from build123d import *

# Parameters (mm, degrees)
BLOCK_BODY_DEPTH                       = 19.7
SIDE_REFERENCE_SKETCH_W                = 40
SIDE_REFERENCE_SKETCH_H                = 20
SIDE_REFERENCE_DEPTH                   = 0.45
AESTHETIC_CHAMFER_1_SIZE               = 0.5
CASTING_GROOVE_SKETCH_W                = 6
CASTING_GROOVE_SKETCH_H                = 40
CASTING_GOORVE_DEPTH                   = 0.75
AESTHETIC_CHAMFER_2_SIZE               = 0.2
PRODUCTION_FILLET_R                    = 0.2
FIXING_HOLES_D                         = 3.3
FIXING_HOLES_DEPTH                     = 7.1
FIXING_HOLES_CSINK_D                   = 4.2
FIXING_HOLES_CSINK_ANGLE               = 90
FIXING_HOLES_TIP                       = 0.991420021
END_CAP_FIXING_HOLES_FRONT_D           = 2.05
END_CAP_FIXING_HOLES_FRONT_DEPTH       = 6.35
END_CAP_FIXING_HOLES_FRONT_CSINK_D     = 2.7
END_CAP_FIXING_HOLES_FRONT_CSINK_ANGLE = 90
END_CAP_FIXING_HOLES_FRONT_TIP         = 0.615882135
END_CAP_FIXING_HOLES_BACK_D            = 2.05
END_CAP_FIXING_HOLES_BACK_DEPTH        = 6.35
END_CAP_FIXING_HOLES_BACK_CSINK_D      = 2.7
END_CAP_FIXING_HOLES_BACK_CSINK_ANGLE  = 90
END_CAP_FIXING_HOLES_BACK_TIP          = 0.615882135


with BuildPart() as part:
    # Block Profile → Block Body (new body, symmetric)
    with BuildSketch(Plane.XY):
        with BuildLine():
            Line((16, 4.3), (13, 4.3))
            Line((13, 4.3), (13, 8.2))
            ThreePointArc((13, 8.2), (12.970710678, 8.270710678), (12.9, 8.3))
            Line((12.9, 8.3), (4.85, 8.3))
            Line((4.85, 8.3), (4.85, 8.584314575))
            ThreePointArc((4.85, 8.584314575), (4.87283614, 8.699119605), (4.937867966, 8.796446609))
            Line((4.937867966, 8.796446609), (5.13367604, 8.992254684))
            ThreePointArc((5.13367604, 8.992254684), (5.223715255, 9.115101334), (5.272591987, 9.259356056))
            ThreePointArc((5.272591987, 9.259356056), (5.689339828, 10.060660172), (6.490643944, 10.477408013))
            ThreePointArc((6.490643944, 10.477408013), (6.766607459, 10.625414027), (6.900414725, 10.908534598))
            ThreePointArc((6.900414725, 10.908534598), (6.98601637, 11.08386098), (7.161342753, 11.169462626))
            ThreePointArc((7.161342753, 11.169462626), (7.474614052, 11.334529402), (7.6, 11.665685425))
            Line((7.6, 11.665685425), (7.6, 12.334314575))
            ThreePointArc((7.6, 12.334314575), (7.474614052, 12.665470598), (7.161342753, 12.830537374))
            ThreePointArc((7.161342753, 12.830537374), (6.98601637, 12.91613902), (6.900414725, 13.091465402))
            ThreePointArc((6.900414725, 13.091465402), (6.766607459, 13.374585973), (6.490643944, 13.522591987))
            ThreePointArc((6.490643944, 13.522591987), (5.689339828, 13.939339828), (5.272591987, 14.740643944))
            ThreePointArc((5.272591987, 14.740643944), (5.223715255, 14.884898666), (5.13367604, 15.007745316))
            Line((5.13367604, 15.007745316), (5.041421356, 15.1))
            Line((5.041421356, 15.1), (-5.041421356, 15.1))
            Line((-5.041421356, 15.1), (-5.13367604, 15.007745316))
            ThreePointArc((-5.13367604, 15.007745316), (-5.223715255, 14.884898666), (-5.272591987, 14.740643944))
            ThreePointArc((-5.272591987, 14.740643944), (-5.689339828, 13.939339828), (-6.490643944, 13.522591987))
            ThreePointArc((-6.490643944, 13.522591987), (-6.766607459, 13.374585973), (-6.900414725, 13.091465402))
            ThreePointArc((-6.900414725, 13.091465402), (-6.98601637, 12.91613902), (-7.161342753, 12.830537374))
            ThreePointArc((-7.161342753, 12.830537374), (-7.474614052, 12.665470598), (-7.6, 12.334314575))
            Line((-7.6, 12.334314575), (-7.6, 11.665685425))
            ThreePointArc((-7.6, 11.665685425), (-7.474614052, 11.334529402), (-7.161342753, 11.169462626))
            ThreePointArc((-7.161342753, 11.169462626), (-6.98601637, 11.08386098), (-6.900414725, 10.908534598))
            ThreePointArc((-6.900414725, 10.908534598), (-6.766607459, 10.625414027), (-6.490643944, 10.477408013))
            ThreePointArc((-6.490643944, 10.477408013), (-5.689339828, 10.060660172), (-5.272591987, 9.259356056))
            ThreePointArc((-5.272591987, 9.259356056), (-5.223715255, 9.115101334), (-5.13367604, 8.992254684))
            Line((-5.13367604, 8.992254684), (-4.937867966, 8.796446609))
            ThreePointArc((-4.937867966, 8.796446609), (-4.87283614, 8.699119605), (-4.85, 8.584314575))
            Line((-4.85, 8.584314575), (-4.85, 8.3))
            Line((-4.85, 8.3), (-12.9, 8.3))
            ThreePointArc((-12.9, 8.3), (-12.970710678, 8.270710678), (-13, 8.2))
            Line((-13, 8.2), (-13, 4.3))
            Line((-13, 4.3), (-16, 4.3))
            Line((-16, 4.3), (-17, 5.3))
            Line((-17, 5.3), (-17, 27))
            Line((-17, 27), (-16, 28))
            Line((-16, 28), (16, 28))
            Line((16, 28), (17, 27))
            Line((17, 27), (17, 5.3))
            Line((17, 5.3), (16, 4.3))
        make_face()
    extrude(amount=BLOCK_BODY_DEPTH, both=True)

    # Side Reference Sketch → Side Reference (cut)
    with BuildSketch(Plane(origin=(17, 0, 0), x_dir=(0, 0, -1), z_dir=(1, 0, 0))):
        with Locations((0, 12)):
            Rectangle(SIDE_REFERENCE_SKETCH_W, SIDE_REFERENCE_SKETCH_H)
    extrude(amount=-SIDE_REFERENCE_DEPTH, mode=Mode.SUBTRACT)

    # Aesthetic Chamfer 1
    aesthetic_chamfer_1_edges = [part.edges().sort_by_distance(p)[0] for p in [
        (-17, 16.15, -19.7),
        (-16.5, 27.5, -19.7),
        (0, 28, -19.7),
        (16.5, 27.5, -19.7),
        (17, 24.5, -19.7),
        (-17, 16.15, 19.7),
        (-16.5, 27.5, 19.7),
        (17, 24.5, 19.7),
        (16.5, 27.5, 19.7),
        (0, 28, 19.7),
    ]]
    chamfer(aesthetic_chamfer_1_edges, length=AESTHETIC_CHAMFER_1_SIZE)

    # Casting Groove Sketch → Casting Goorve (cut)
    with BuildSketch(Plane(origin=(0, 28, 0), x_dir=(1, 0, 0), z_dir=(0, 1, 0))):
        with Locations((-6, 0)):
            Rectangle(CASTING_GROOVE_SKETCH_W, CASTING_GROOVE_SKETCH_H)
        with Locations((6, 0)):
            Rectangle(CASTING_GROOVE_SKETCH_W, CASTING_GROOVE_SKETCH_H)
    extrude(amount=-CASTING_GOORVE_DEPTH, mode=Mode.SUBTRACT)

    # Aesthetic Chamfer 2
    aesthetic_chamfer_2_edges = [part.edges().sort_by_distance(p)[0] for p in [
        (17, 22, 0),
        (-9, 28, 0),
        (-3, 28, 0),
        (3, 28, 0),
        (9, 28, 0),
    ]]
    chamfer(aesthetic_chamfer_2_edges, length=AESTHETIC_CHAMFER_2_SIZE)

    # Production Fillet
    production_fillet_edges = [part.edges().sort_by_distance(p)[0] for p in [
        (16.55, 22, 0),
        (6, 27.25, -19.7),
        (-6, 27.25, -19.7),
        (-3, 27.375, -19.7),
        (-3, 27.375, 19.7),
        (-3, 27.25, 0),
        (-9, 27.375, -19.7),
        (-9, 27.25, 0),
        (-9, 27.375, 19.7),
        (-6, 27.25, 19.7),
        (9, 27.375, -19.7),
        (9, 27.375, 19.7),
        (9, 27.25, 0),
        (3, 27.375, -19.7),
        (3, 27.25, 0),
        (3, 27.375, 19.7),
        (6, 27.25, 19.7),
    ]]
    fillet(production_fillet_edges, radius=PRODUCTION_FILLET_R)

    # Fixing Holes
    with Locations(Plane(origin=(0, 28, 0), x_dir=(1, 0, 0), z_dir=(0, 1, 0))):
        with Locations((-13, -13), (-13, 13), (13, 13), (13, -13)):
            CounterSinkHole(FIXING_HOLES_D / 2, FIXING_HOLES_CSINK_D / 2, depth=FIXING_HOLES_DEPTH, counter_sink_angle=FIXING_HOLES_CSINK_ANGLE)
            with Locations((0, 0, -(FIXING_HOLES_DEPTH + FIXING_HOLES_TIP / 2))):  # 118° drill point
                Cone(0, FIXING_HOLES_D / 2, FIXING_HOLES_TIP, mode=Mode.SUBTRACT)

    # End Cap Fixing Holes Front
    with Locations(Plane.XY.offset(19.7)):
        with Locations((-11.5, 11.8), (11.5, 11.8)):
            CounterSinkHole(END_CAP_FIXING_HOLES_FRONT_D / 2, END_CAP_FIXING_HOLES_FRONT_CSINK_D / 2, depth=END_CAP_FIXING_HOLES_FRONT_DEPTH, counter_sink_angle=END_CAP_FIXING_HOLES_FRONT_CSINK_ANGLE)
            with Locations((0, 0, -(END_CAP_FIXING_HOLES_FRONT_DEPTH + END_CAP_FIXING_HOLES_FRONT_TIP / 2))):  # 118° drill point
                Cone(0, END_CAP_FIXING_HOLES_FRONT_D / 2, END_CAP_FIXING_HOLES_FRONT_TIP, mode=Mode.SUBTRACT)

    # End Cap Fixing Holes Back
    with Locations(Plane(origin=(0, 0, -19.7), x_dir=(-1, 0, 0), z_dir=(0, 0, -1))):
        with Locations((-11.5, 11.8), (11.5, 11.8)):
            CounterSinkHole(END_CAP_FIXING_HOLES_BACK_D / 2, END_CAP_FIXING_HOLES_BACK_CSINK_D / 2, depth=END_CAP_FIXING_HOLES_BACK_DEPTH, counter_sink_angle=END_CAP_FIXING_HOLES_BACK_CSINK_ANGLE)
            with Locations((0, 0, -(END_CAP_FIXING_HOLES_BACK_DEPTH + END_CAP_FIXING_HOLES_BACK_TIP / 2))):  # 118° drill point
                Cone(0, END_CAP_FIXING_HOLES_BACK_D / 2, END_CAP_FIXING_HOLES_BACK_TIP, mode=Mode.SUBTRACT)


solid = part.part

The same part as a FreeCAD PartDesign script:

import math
import FreeCAD as App
import Part
import Sketcher
from FreeCAD import Vector
Q = App.Units.Quantity


def edges_at(feature, points):
    """Names of the edges that pass closest to the given points."""
    edges = feature.Shape.Edges
    near = lambda p: min(range(len(edges)), key=lambda i: edges[i].distToShape(Part.Vertex(*p))[0])
    return sorted({f"Edge{near(p) + 1}" for p in points})


def add_polygon(sketch, points):
    """Adds a closed chain of lines whose ends are joined by coincident constraints."""
    first, n = sketch.GeometryCount, len(points)
    for a, b in zip(points, points[1:] + points[:1]):
        sketch.addGeometry(Part.LineSegment(App.Vector(*a, 0), App.Vector(*b, 0)), False)
    for i in range(n):
        sketch.addConstraint(Sketcher.Constraint("Coincident", first + i, 2, first + (i + 1) % n, 1))

doc = App.newDocument("Part")
body = doc.addObject("PartDesign::Body", "Body")

sketch1 = body.newObject("Sketcher::SketchObject", "Sketch")
sketch1.AttachmentSupport = (doc.getObject("XY_Plane"), [""])
sketch1.MapMode = "FlatFace"
sketch1.addGeometry([
    Part.LineSegment(Vector(13, 4.3, 0), Vector(16, 4.3, 0)),
    Part.LineSegment(Vector(16, 4.3, 0), Vector(17, 5.3, 0)),
    Part.LineSegment(Vector(17, 5.3, 0), Vector(17, 27, 0)),
    Part.LineSegment(Vector(17, 27, 0), Vector(16, 28, 0)),
    Part.LineSegment(Vector(16, 28, 0), Vector(-16, 28, 0)),
    Part.LineSegment(Vector(-16, 28, 0), Vector(-17, 27, 0)),
    Part.LineSegment(Vector(-17, 27, 0), Vector(-17, 5.3, 0)),
    Part.LineSegment(Vector(-17, 5.3, 0), Vector(-16, 4.3, 0)),
    Part.LineSegment(Vector(-16, 4.3, 0), Vector(-13, 4.3, 0)),
    Part.LineSegment(Vector(-13, 4.3, 0), Vector(-13, 8.2, 0)),
    Part.ArcOfCircle(Part.Circle(Vector(-12.9, 8.2, 0), Vector(0, 0, 1), 0.1), math.radians(90), math.radians(180)),
    Part.LineSegment(Vector(-12.9, 8.3, 0), Vector(-4.85, 8.3, 0)),
    Part.LineSegment(Vector(-4.85, 8.3, 0), Vector(-4.85, 8.584315, 0)),
    Part.ArcOfCircle(Part.Circle(Vector(-5.15, 8.584315, 0), Vector(0, 0, 1), 0.3), math.radians(0), math.radians(45.000001)),
    Part.LineSegment(Vector(-4.937868, 8.796447, 0), Vector(-5.133676, 8.992255, 0)),
    Part.ArcOfCircle(Part.Circle(Vector(-4.780123, 9.345808, 0), Vector(0, 0, 1), 0.5), math.radians(-170.043291), math.radians(-135)),
    Part.ArcOfCircle(Part.Circle(Vector(-6.75, 9, 0), Vector(0, 0, 1), 1.5), math.radians(9.956709), math.radians(80.043291)),
    Part.ArcOfCircle(Part.Circle(Vector(-6.404192, 10.969877, 0), Vector(0, 0, 1), 0.5), math.radians(-172.952884), math.radians(-99.956709)),
    Part.ArcOfCircle(Part.Circle(Vector(-7.198148, 10.871729, 0), Vector(0, 0, 1), 0.3), math.radians(7.047116), math.radians(82.952884)),
    Part.ArcOfCircle(Part.Circle(Vector(-7.1, 11.665685, 0), Vector(0, 0, 1), 0.5), math.radians(-180), math.radians(-97.047116)),
    Part.LineSegment(Vector(-7.6, 11.665685, 0), Vector(-7.6, 12.334315, 0)),
    Part.ArcOfCircle(Part.Circle(Vector(-7.1, 12.334315, 0), Vector(0, 0, 1), 0.5), math.radians(97.047116), math.radians(180)),
    Part.ArcOfCircle(Part.Circle(Vector(-7.198148, 13.128271, 0), Vector(0, 0, 1), 0.3), math.radians(-82.952884), math.radians(-7.047116)),
    Part.ArcOfCircle(Part.Circle(Vector(-6.404192, 13.030123, 0), Vector(0, 0, 1), 0.5), math.radians(99.956709), math.radians(172.952884)),
    Part.ArcOfCircle(Part.Circle(Vector(-6.75, 15, 0), Vector(0, 0, 1), 1.5), math.radians(-80.043291), math.radians(-9.956709)),
    Part.ArcOfCircle(Part.Circle(Vector(-4.780123, 14.654192, 0), Vector(0, 0, 1), 0.5), math.radians(135), math.radians(170.043291)),
    Part.LineSegment(Vector(-5.133676, 15.007745, 0), Vector(-5.041421, 15.1, 0)),
    Part.LineSegment(Vector(-5.041421, 15.1, 0), Vector(5.041421, 15.1, 0)),
    Part.LineSegment(Vector(5.041421, 15.1, 0), Vector(5.133676, 15.007745, 0)),
    Part.ArcOfCircle(Part.Circle(Vector(4.780123, 14.654192, 0), Vector(0, 0, 1), 0.5), math.radians(9.956709), math.radians(45)),
    Part.ArcOfCircle(Part.Circle(Vector(6.75, 15, 0), Vector(0, 0, 1), 1.5), math.radians(-170.043291), math.radians(-99.956709)),
    Part.ArcOfCircle(Part.Circle(Vector(6.404192, 13.030123, 0), Vector(0, 0, 1), 0.5), math.radians(7.047116), math.radians(80.043291)),
    Part.ArcOfCircle(Part.Circle(Vector(7.198148, 13.128271, 0), Vector(0, 0, 1), 0.3), math.radians(-172.952884), math.radians(-97.047116)),
    Part.ArcOfCircle(Part.Circle(Vector(7.1, 12.334315, 0), Vector(0, 0, 1), 0.5), math.radians(0), math.radians(82.952884)),
    Part.LineSegment(Vector(7.6, 12.334315, 0), Vector(7.6, 11.665685, 0)),
    Part.ArcOfCircle(Part.Circle(Vector(7.1, 11.665685, 0), Vector(0, 0, 1), 0.5), math.radians(-82.952884), math.radians(0)),
    Part.ArcOfCircle(Part.Circle(Vector(7.198148, 10.871729, 0), Vector(0, 0, 1), 0.3), math.radians(97.047116), math.radians(172.952884)),
    Part.ArcOfCircle(Part.Circle(Vector(6.404192, 10.969877, 0), Vector(0, 0, 1), 0.5), math.radians(-80.043291), math.radians(-7.047116)),
    Part.ArcOfCircle(Part.Circle(Vector(6.75, 9, 0), Vector(0, 0, 1), 1.5), math.radians(99.956709), math.radians(170.043291)),
    Part.ArcOfCircle(Part.Circle(Vector(4.780123, 9.345808, 0), Vector(0, 0, 1), 0.5), math.radians(-45), math.radians(-9.956709)),
    Part.LineSegment(Vector(5.133676, 8.992255, 0), Vector(4.937868, 8.796447, 0)),
    Part.ArcOfCircle(Part.Circle(Vector(5.15, 8.584315, 0), Vector(0, 0, 1), 0.3), math.radians(134.999999), math.radians(180)),
    Part.LineSegment(Vector(4.85, 8.584315, 0), Vector(4.85, 8.3, 0)),
    Part.LineSegment(Vector(4.85, 8.3, 0), Vector(12.9, 8.3, 0)),
    Part.ArcOfCircle(Part.Circle(Vector(12.9, 8.2, 0), Vector(0, 0, 1), 0.1), math.radians(0), math.radians(90)),
    Part.LineSegment(Vector(13, 8.2, 0), Vector(13, 4.3, 0)),
], False)
sketch1.addConstraint([
    Sketcher.Constraint("Coincident", 0, 2, 1, 1),
    Sketcher.Constraint("Coincident", 1, 2, 2, 1),
    Sketcher.Constraint("Coincident", 2, 2, 3, 1),
    Sketcher.Constraint("Coincident", 3, 2, 4, 1),
    Sketcher.Constraint("Coincident", 4, 2, 5, 1),
    Sketcher.Constraint("Coincident", 5, 2, 6, 1),
    Sketcher.Constraint("Coincident", 6, 2, 7, 1),
    Sketcher.Constraint("Coincident", 7, 2, 8, 1),
    Sketcher.Constraint("Coincident", 8, 2, 9, 1),
    Sketcher.Constraint("Tangent", 9, 2, 10, 2),
    Sketcher.Constraint("Tangent", 10, 1, 11, 1),
    Sketcher.Constraint("Coincident", 11, 2, 12, 1),
    Sketcher.Constraint("Tangent", 12, 2, 13, 1),
    Sketcher.Constraint("Tangent", 13, 2, 14, 1),
    Sketcher.Constraint("Tangent", 14, 2, 15, 2),
    Sketcher.Constraint("Tangent", 15, 1, 16, 1),
    Sketcher.Constraint("Tangent", 16, 2, 17, 2),
    Sketcher.Constraint("Tangent", 17, 1, 18, 1),
    Sketcher.Constraint("Tangent", 18, 2, 19, 2),
    Sketcher.Constraint("Tangent", 19, 1, 20, 1),
    Sketcher.Constraint("Tangent", 20, 2, 21, 2),
    Sketcher.Constraint("Tangent", 21, 1, 22, 1),
    Sketcher.Constraint("Tangent", 22, 2, 23, 2),
    Sketcher.Constraint("Tangent", 23, 1, 24, 1),
    Sketcher.Constraint("Tangent", 24, 2, 25, 2),
    Sketcher.Constraint("Tangent", 25, 1, 26, 1),
    Sketcher.Constraint("Coincident", 26, 2, 27, 1),
    Sketcher.Constraint("Coincident", 27, 2, 28, 1),
    Sketcher.Constraint("Tangent", 28, 2, 29, 2),
    Sketcher.Constraint("Tangent", 29, 1, 30, 1),
    Sketcher.Constraint("Tangent", 30, 2, 31, 2),
    Sketcher.Constraint("Tangent", 31, 1, 32, 1),
    Sketcher.Constraint("Tangent", 32, 2, 33, 2),
    Sketcher.Constraint("Tangent", 33, 1, 34, 1),
    Sketcher.Constraint("Tangent", 34, 2, 35, 2),
    Sketcher.Constraint("Tangent", 35, 1, 36, 1),
    Sketcher.Constraint("Tangent", 36, 2, 37, 2),
    Sketcher.Constraint("Tangent", 37, 1, 38, 1),
    Sketcher.Constraint("Tangent", 38, 2, 39, 2),
    Sketcher.Constraint("Tangent", 39, 1, 40, 1),
    Sketcher.Constraint("Tangent", 40, 2, 41, 1),
    Sketcher.Constraint("Tangent", 41, 2, 42, 1),
    Sketcher.Constraint("Coincident", 42, 2, 43, 1),
    Sketcher.Constraint("Tangent", 43, 2, 44, 2),
    Sketcher.Constraint("Tangent", 44, 1, 45, 1),
    Sketcher.Constraint("Coincident", 45, 2, 0, 1),
    Sketcher.Constraint("Horizontal", 0),
    Sketcher.Constraint("Vertical", 2),
    Sketcher.Constraint("Horizontal", 4),
    Sketcher.Constraint("Vertical", 6),
    Sketcher.Constraint("Horizontal", 8),
    Sketcher.Constraint("Vertical", 9),
    Sketcher.Constraint("Horizontal", 11),
    Sketcher.Constraint("Vertical", 12),
    Sketcher.Constraint("Vertical", 20),
    Sketcher.Constraint("Horizontal", 27),
    Sketcher.Constraint("Vertical", 34),
    Sketcher.Constraint("Vertical", 42),
    Sketcher.Constraint("Horizontal", 43),
    Sketcher.Constraint("Vertical", 45),
    Sketcher.Constraint("Equal", 15, 17),
    Sketcher.Constraint("Equal", 13, 18),
    Sketcher.Constraint("Equal", 17, 19),
    Sketcher.Constraint("Equal", 19, 21),
    Sketcher.Constraint("Equal", 18, 22),
    Sketcher.Constraint("Equal", 21, 23),
    Sketcher.Constraint("Equal", 16, 24),
    Sketcher.Constraint("Equal", 23, 25),
    Sketcher.Constraint("Equal", 25, 29),
    Sketcher.Constraint("Equal", 24, 30),
    Sketcher.Constraint("Equal", 29, 31),
    Sketcher.Constraint("Equal", 22, 32),
    Sketcher.Constraint("Equal", 31, 33),
    Sketcher.Constraint("Equal", 33, 35),
    Sketcher.Constraint("Equal", 32, 36),
    Sketcher.Constraint("Equal", 35, 37),
    Sketcher.Constraint("Equal", 30, 38),
    Sketcher.Constraint("Equal", 37, 39),
    Sketcher.Constraint("Equal", 36, 41),
    Sketcher.Constraint("Equal", 10, 44),
    Sketcher.Constraint("Symmetric", 25, 3, 29, 3, -2),
    Sketcher.Constraint("Symmetric", 23, 3, 31, 3, -2),
    Sketcher.Constraint("Symmetric", 21, 3, 33, 3, -2),
    Sketcher.Constraint("Symmetric", 18, 3, 36, 3, -2),
    Sketcher.Constraint("Symmetric", 16, 3, 38, 3, -2),
    Sketcher.Constraint("Symmetric", 13, 3, 41, 3, -2),
    Sketcher.Constraint("Symmetric", 10, 3, 44, 3, -2),
    Sketcher.Constraint("Symmetric", 2, 2, 5, 2, -2),
    Sketcher.Constraint("Symmetric", 0, 2, 7, 2, -2),
    Sketcher.Constraint("Perpendicular", 1, 3),
    Sketcher.Constraint("Perpendicular", 3, 5),
    Sketcher.Constraint("Perpendicular", 5, 7),
    Sketcher.Constraint("Parallel", 7, 14),
    Sketcher.Constraint("Perpendicular", 14, 26),
    Sketcher.Constraint("Perpendicular", 26, 28),
    Sketcher.Constraint("Perpendicular", 28, 40),
    Sketcher.Constraint("Horizontal", 15, 3, 39, 3),
    Sketcher.Constraint("Vertical", 18, 3, 22, 3),
    Sketcher.Constraint("Vertical", 17, 3, 23, 3),
    Sketcher.Constraint("Vertical", 16, 3, 24, 3),
    Sketcher.Constraint("Vertical", 15, 3, 25, 3),
    Sketcher.Constraint("Vertical", 0, 2, 3, 2),
    Sketcher.Constraint("Radius", 10, Q("0.1 mm")),
    Sketcher.Constraint("Radius", 13, Q("0.3 mm")),
    Sketcher.Constraint("Radius", 15, Q("0.5 mm")),
    Sketcher.Constraint("Radius", 16, Q("1.5 mm")),
    Sketcher.Constraint("DistanceX", 0, 1, 0, 2, Q("3 mm")),
    Sketcher.Constraint("DistanceX", 4, 2, 4, 1, Q("32 mm")),
    Sketcher.Constraint("DistanceY", 2, 1, 2, 2, Q("21.7 mm")),
    Sketcher.Constraint("DistanceY", 9, 1, 9, 2, Q("3.9 mm")),
    Sketcher.Constraint("DistanceY", -1, 1, 16, 3, Q("9 mm")),
    Sketcher.Constraint("DistanceY", -1, 1, 24, 3, Q("15 mm")),
    Sketcher.Constraint("DistanceX", -1, 1, 1, 2, Q("17 mm")),
    Sketcher.Constraint("DistanceY", -1, 1, 2, 2, Q("27 mm")),
    Sketcher.Constraint("DistanceX", 11, 1, 11, 2, Q("8.05 mm")),
    Sketcher.Constraint("DistanceX", 19, 3, -1, 1, Q("7.1 mm")),
    Sketcher.Constraint("DistanceY", -1, 1, 26, 2, Q("15.1 mm")),
    Sketcher.Constraint("DistanceX", 16, 3, -1, 1, Q("6.75 mm")),
    Sketcher.Constraint("DistanceY", 20, 1, 20, 2, Q("0.668629 mm")),
    Sketcher.Constraint("DistanceX", 27, 1, 27, 2, Q("10.082843 mm")),
    Sketcher.Constraint("DistanceX", 17, 3, -1, 1, Q("6.404192 mm")),
])
pad1 = body.newObject("PartDesign::Pad", "Pad")
pad1.Profile = sketch1
pad1.Length = 39.4
pad1.Midplane = True

sketch2 = body.newObject("Sketcher::SketchObject", "Sketch001")
sketch2.AttachmentSupport = (doc.getObject("YZ_Plane"), [""])
sketch2.MapMode = "FlatFace"
sketch2.AttachmentOffset = App.Placement(Vector(0, 0, 17), App.Rotation())
add_polygon(sketch2, [(22, 20), (2, 20), (2, -20), (22, -20)])
sketch2.addConstraint([
    Sketcher.Constraint("Horizontal", 0),
    Sketcher.Constraint("Vertical", 1),
    Sketcher.Constraint("Horizontal", 2),
    Sketcher.Constraint("Vertical", 3),
    Sketcher.Constraint("DistanceX", 0, 2, 0, 1, Q("20 mm")),
    Sketcher.Constraint("DistanceY", 1, 2, 1, 1, Q("40 mm")),
    Sketcher.Constraint("DistanceX", -1, 1, 0, 2, Q("2 mm")),
    Sketcher.Constraint("DistanceY", -1, 1, 0, 2, Q("20 mm")),
])
pocket1 = body.newObject("PartDesign::Pocket", "Pocket")
pocket1.Profile = sketch2
pocket1.Length = 0.45
doc.recompute()

chamfer = body.newObject("PartDesign::Chamfer", "Chamfer")
chamfer.Base = (pocket1, edges_at(pocket1, [
    (-17, 16.15, -19.7),
    (-16.5, 27.5, -19.7),
    (0, 28, -19.7),
    (16.5, 27.5, -19.7),
    (17, 24.5, -19.7),
    (-17, 16.15, 19.7),
    (-16.5, 27.5, 19.7),
    (17, 24.5, 19.7),
    (16.5, 27.5, 19.7),
    (0, 28, 19.7),
]))
chamfer.Size = 0.5

sketch3 = body.newObject("Sketcher::SketchObject", "Sketch002")
sketch3.AttachmentSupport = (doc.getObject("XZ_Plane"), [""])
sketch3.MapMode = "FlatFace"
sketch3.AttachmentOffset = App.Placement(Vector(0, 0, -28), App.Rotation())
add_polygon(sketch3, [(-9, -20), (-9, 20), (-3, 20), (-3, -20)])
add_polygon(sketch3, [(3, -20), (3, 20), (9, 20), (9, -20)])
sketch3.addConstraint([
    Sketcher.Constraint("Vertical", 0),
    Sketcher.Constraint("Horizontal", 1),
    Sketcher.Constraint("Vertical", 2),
    Sketcher.Constraint("Horizontal", 3),
    Sketcher.Constraint("Vertical", 4),
    Sketcher.Constraint("Horizontal", 5),
    Sketcher.Constraint("Vertical", 6),
    Sketcher.Constraint("Horizontal", 7),
    Sketcher.Constraint("Symmetric", 2, 2, 4, 2, -1, 1),
    Sketcher.Constraint("Symmetric", 0, 2, 6, 2, -1, 1),
    Sketcher.Constraint("Horizontal", 1, 2, 4, 2),
    Sketcher.Constraint("DistanceX", 1, 1, 1, 2, Q("6 mm")),
    Sketcher.Constraint("DistanceY", 0, 1, 0, 2, Q("40 mm")),
    Sketcher.Constraint("DistanceX", 0, 2, -1, 1, Q("9 mm")),
])
pocket2 = body.newObject("PartDesign::Pocket", "Pocket001")
pocket2.Profile = sketch3
pocket2.Length = 0.75
pocket2.Reversed = True
doc.recompute()

chamfer2 = body.newObject("PartDesign::Chamfer", "Chamfer001")
chamfer2.Base = (pocket2, edges_at(pocket2, [
    (17, 22, 0),
    (-9, 28, 0),
    (-3, 28, 0),
    (3, 28, 0),
    (9, 28, 0),
]))
chamfer2.Size = 0.2
doc.recompute()

fillet = body.newObject("PartDesign::Fillet", "Fillet")
fillet.Base = (chamfer2, edges_at(chamfer2, [
    (16.55, 22, 0),
    (6, 27.25, -19.7),
    (-6, 27.25, -19.7),
    (-3, 27.375, -19.7),
    (-3, 27.375, 19.7),
    (-3, 27.25, 0),
    (-9, 27.375, -19.7),
    (-9, 27.25, 0),
    (-9, 27.375, 19.7),
    (-6, 27.25, 19.7),
    (9, 27.375, -19.7),
    (9, 27.375, 19.7),
    (9, 27.25, 0),
    (3, 27.375, -19.7),
    (3, 27.25, 0),
    (3, 27.375, 19.7),
    (6, 27.25, 19.7),
]))
fillet.Radius = 0.2

sketch4 = body.newObject("Sketcher::SketchObject", "Sketch003")
sketch4.AttachmentSupport = (doc.getObject("XZ_Plane"), [""])
sketch4.MapMode = "FlatFace"
sketch4.AttachmentOffset = App.Placement(Vector(0, 0, -28), App.Rotation())
sketch4.addGeometry([
    Part.Circle(Vector(-13, 13, 0), Vector(0, 0, 1), 1.65),
    Part.Circle(Vector(-13, -13, 0), Vector(0, 0, 1), 1.65),
    Part.Circle(Vector(13, -13, 0), Vector(0, 0, 1), 1.65),
    Part.Circle(Vector(13, 13, 0), Vector(0, 0, 1), 1.65),
], False)
sketch4.addConstraint([
    Sketcher.Constraint("Equal", 0, 1),
    Sketcher.Constraint("Equal", 1, 2),
    Sketcher.Constraint("Equal", 2, 3),
    Sketcher.Constraint("Symmetric", 0, 3, 2, 3, -1, 1),
    Sketcher.Constraint("Symmetric", 1, 3, 3, 3, -1, 1),
    Sketcher.Constraint("Symmetric", 1, 3, 2, 3, -2),
    Sketcher.Constraint("Diameter", 0, Q("3.3 mm")),
    Sketcher.Constraint("DistanceX", 0, 3, -1, 1, Q("13 mm")),
    Sketcher.Constraint("DistanceY", -1, 1, 0, 3, Q("13 mm")),
])
doc.recompute()
hole = body.newObject("PartDesign::Hole", "Hole")
hole.Profile = sketch4
hole.ThreadType = "None"
hole.Diameter = 3.3
hole.DepthType = "Dimension"
hole.Depth = 7.1
hole.DrillPoint = "Angled"
hole.DrillPointAngle = 118
hole.HoleCutType = "Countersink"
hole.HoleCutDiameter = 4.2
hole.HoleCutCountersinkAngle = 90
hole.Reversed = True

sketch5 = body.newObject("Sketcher::SketchObject", "Sketch004")
sketch5.AttachmentSupport = (doc.getObject("XY_Plane"), [""])
sketch5.MapMode = "FlatFace"
sketch5.AttachmentOffset = App.Placement(Vector(0, 0, 19.7), App.Rotation())
sketch5.addGeometry([
    Part.Circle(Vector(-11.5, 11.8, 0), Vector(0, 0, 1), 1.025),
    Part.Circle(Vector(11.5, 11.8, 0), Vector(0, 0, 1), 1.025),
], False)
sketch5.addConstraint([
    Sketcher.Constraint("Equal", 0, 1),
    Sketcher.Constraint("Symmetric", 0, 3, 1, 3, -2),
    Sketcher.Constraint("Diameter", 0, Q("2.05 mm")),
    Sketcher.Constraint("DistanceX", 0, 3, 1, 3, Q("23 mm")),
    Sketcher.Constraint("DistanceY", -1, 1, 0, 3, Q("11.8 mm")),
])
doc.recompute()
hole2 = body.newObject("PartDesign::Hole", "Hole001")
hole2.Profile = sketch5
hole2.ThreadType = "None"
hole2.Diameter = 2.05
hole2.DepthType = "Dimension"
hole2.Depth = 6.35
hole2.DrillPoint = "Angled"
hole2.DrillPointAngle = 118
hole2.HoleCutType = "Countersink"
hole2.HoleCutDiameter = 2.7
hole2.HoleCutCountersinkAngle = 90

sketch6 = body.newObject("Sketcher::SketchObject", "Sketch005")
sketch6.AttachmentSupport = (doc.getObject("XY_Plane"), [""])
sketch6.MapMode = "FlatFace"
sketch6.AttachmentOffset = App.Placement(Vector(0, 0, -19.7), App.Rotation())
sketch6.addGeometry([
    Part.Circle(Vector(11.5, 11.8, 0), Vector(0, 0, 1), 1.025),
    Part.Circle(Vector(-11.5, 11.8, 0), Vector(0, 0, 1), 1.025),
], False)
sketch6.addConstraint([
    Sketcher.Constraint("Equal", 0, 1),
    Sketcher.Constraint("Symmetric", 0, 3, 1, 3, -2),
    Sketcher.Constraint("Diameter", 0, Q("2.05 mm")),
    Sketcher.Constraint("DistanceX", 1, 3, 0, 3, Q("23 mm")),
    Sketcher.Constraint("DistanceY", -1, 1, 0, 3, Q("11.8 mm")),
])
doc.recompute()
hole3 = body.newObject("PartDesign::Hole", "Hole002")
hole3.Profile = sketch6
hole3.ThreadType = "None"
hole3.Diameter = 2.05
hole3.DepthType = "Dimension"
hole3.Depth = 6.35
hole3.DrillPoint = "Angled"
hole3.DrillPointAngle = 118
hole3.HoleCutType = "Countersink"
hole3.HoleCutDiameter = 2.7
hole3.HoleCutCountersinkAngle = 90
hole3.Reversed = True

doc.recompute()
